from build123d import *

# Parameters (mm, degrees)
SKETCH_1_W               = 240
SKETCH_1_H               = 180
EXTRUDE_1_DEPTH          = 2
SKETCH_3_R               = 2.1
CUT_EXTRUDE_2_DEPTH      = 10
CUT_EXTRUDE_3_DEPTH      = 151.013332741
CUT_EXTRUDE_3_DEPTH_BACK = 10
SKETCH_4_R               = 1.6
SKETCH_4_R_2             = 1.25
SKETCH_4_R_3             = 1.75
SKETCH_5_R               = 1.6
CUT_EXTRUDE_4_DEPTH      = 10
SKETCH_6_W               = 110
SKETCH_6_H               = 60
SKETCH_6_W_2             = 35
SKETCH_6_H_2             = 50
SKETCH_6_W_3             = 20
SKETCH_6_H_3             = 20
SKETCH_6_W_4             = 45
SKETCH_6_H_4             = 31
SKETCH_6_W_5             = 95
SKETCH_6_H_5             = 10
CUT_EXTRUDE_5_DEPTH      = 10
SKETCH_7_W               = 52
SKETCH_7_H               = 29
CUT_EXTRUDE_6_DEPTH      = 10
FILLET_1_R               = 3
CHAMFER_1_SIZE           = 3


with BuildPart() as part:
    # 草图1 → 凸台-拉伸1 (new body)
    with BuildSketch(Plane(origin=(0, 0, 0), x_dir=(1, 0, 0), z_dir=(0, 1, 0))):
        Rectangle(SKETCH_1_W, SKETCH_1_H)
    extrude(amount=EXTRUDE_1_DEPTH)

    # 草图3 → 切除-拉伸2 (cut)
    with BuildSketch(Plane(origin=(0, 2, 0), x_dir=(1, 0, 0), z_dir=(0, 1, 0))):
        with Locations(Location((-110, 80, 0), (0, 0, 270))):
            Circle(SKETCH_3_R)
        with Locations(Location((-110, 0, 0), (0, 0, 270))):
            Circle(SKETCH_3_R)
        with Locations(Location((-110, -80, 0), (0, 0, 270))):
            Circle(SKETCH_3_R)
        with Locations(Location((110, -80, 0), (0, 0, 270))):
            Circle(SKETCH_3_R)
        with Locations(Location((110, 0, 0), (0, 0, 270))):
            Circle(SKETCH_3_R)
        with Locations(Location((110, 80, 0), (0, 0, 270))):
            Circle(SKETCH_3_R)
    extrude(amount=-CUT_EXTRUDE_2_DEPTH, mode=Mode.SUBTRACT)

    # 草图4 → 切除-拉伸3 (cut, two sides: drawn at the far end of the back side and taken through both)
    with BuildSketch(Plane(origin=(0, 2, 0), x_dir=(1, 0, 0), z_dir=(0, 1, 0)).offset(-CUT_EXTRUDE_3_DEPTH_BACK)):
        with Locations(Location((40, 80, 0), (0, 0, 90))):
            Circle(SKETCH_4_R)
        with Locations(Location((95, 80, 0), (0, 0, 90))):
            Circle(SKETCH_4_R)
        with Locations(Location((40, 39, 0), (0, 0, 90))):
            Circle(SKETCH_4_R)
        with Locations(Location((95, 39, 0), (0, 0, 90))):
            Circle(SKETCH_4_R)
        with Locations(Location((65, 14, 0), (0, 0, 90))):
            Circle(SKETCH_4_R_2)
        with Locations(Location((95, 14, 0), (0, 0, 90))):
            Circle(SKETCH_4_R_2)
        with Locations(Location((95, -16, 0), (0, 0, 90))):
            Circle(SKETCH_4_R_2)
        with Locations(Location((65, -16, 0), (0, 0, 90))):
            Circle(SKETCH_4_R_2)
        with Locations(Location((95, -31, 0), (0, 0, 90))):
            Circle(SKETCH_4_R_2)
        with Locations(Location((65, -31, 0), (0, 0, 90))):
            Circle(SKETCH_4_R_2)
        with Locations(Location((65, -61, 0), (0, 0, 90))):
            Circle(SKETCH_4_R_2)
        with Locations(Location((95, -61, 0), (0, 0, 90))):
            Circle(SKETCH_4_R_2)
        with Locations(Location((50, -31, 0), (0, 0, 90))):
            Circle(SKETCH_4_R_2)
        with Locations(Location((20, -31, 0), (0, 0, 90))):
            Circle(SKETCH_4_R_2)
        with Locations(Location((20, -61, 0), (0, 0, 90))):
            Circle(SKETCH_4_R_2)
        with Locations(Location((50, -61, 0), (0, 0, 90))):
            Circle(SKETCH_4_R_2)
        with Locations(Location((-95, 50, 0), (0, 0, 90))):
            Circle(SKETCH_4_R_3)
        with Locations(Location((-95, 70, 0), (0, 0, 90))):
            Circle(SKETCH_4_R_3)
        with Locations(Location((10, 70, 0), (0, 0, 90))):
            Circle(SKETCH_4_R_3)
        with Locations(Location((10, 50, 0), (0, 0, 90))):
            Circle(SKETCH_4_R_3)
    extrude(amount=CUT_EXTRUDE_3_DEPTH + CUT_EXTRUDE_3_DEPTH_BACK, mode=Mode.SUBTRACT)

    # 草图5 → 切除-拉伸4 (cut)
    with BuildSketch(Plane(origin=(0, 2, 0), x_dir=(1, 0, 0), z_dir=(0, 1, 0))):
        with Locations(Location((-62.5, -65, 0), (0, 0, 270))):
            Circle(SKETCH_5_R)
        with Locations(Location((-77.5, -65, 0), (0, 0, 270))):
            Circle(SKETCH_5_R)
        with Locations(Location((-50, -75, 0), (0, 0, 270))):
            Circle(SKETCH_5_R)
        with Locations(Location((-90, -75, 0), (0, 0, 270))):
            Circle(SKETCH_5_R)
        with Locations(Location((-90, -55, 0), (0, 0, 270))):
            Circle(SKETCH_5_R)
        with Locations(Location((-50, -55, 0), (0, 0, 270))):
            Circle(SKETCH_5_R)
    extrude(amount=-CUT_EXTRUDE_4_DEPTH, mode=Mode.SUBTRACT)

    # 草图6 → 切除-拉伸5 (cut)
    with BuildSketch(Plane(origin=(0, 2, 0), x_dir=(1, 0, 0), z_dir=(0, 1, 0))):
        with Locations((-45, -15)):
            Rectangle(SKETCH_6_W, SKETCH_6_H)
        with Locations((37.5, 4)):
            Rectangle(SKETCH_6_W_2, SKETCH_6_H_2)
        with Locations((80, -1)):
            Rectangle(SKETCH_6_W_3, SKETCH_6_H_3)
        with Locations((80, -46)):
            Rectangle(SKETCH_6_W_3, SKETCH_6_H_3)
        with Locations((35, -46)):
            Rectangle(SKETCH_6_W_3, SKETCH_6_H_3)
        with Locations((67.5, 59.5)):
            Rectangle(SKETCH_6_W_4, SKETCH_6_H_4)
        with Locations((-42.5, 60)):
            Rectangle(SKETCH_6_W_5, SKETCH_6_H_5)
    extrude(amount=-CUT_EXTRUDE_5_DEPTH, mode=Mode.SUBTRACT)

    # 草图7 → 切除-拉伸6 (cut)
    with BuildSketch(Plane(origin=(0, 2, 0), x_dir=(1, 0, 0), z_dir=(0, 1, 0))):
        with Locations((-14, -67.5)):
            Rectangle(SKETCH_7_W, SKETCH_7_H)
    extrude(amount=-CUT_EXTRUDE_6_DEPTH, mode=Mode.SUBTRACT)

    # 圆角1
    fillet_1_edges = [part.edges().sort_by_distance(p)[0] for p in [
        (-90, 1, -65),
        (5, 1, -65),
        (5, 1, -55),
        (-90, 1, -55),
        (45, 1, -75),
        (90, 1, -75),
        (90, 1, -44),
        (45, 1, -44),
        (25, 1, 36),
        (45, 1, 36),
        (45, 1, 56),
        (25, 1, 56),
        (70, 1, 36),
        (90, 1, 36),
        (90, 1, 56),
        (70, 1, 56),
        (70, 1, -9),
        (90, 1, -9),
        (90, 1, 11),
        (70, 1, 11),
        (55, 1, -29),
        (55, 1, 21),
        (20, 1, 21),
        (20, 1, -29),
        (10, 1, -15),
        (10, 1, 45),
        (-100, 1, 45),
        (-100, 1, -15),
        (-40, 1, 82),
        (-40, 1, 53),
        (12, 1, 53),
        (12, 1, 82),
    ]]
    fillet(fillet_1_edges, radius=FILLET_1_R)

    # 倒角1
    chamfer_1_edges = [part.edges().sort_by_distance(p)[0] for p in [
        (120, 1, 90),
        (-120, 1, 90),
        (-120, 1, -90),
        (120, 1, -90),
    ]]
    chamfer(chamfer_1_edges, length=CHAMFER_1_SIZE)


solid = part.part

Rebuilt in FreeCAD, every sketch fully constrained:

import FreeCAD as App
import Part
import Sketcher

V = App.Vector


def edges_at(feature, points):
    """Names of the edges that pass closest to the given points."""
    edges = feature.Shape.Edges
    near = lambda p: min(range(len(edges)), key=lambda i: edges[i].distToShape(Part.Vertex(*p))[0])
    return sorted({f"Edge{near(p) + 1}" for p in points})


def add_polygon(sketch, points):
    """Adds a closed chain of lines whose ends are joined by coincident constraints."""
    first, n = sketch.GeometryCount, len(points)
    for a, b in zip(points, points[1:] + points[:1]):
        sketch.addGeometry(Part.LineSegment(App.Vector(*a, 0), App.Vector(*b, 0)), False)
    for i in range(n):
        sketch.addConstraint(Sketcher.Constraint("Coincident", first + i, 2, first + (i + 1) % n, 1))

doc = App.newDocument("Part")
body = doc.addObject("PartDesign::Body", "Body")

sketch1 = body.newObject("Sketcher::SketchObject", "Sketch")
sketch1.AttachmentSupport = (doc.getObject("XZ_Plane"), [""])
sketch1.MapMode = "FlatFace"
add_polygon(sketch1, [(-120, -90), (-120, 90), (120, 90), (120, -90)])
sketch1.addConstraint(Sketcher.Constraint("Vertical", 0))
sketch1.addConstraint(Sketcher.Constraint("Horizontal", 1))
sketch1.addConstraint(Sketcher.Constraint("Vertical", 2))
sketch1.addConstraint(Sketcher.Constraint("Horizontal", 3))
sketch1.addConstraint(Sketcher.Constraint("Symmetric", 0, 2, 2, 2, -1, 1))
sketch1.addConstraint(Sketcher.Constraint("DistanceX", 1, 1, 1, 2, 240.0))
sketch1.addConstraint(Sketcher.Constraint("DistanceY", 0, 1, 0, 2, 180.0))
pad1 = body.newObject("PartDesign::Pad", "Pad")
pad1.Profile = sketch1
pad1.Length = 2
pad1.Reversed = True

sketch2 = body.newObject("Sketcher::SketchObject", "Sketch001")
sketch2.AttachmentSupport = (doc.getObject("XZ_Plane"), [""])
sketch2.MapMode = "FlatFace"
sketch2.AttachmentOffset = App.Placement(V(0, 0, -2), App.Rotation())
sketch2.addGeometry(Part.Circle(V(-110, -80, 0), V(0, 0, 1), 2.1), False)
sketch2.addGeometry(Part.Circle(V(-110, 0, 0), V(0, 0, 1), 2.1), False)
sketch2.addGeometry(Part.Circle(V(-110, 80, 0), V(0, 0, 1), 2.1), False)
sketch2.addGeometry(Part.Circle(V(110, 80, 0), V(0, 0, 1), 2.1), False)
sketch2.addGeometry(Part.Circle(V(110, 0, 0), V(0, 0, 1), 2.1), False)
sketch2.addGeometry(Part.Circle(V(110, -80, 0), V(0, 0, 1), 2.1), False)
sketch2.addConstraint(Sketcher.Constraint("Equal", 0, 1))
sketch2.addConstraint(Sketcher.Constraint("Equal", 1, 2))
sketch2.addConstraint(Sketcher.Constraint("Equal", 2, 3))
sketch2.addConstraint(Sketcher.Constraint("Equal", 3, 4))
sketch2.addConstraint(Sketcher.Constraint("Equal", 4, 5))
sketch2.addConstraint(Sketcher.Constraint("Symmetric", 0, 3, 3, 3, -1, 1))
sketch2.addConstraint(Sketcher.Constraint("Symmetric", 1, 3, 4, 3, -1, 1))
sketch2.addConstraint(Sketcher.Constraint("Symmetric", 2, 3, 5, 3, -1, 1))
sketch2.addConstraint(Sketcher.Constraint("Symmetric", 2, 3, 3, 3, -2))
sketch2.addConstraint(Sketcher.Constraint("PointOnObject", 1, 3, -1))
sketch2.addConstraint(Sketcher.Constraint("Vertical", 0, 3, 1, 3))
sketch2.addConstraint(Sketcher.Constraint("Diameter", 0, 4.2))
sketch2.addConstraint(Sketcher.Constraint("DistanceX", 0, 3, -1, 1, 110.0))
sketch2.addConstraint(Sketcher.Constraint("DistanceY", 0, 3, -1, 1, 80.0))
pocket1 = body.newObject("PartDesign::Pocket", "Pocket")
pocket1.Profile = sketch2
pocket1.Length = 10
pocket1.Reversed = True

sketch3 = body.newObject("Sketcher::SketchObject", "Sketch002")
sketch3.AttachmentSupport = (doc.getObject("XZ_Plane"), [""])
sketch3.MapMode = "FlatFace"
sketch3.AttachmentOffset = App.Placement(V(0, 0, -2), App.Rotation())
sketch3.addGeometry(Part.Circle(V(40, -80, 0), V(0, 0, 1), 1.6), False)
sketch3.addGeometry(Part.Circle(V(95, -80, 0), V(0, 0, 1), 1.6), False)
sketch3.addGeometry(Part.Circle(V(40, -39, 0), V(0, 0, 1), 1.6), False)
sketch3.addGeometry(Part.Circle(V(95, -39, 0), V(0, 0, 1), 1.6), False)
sketch3.addGeometry(Part.Circle(V(65, -14, 0), V(0, 0, 1), 1.2), False)
sketch3.addGeometry(Part.Circle(V(95, -14, 0), V(0, 0, 1), 1.2), False)
sketch3.addGeometry(Part.Circle(V(95, 16, 0), V(0, 0, 1), 1.2), False)
sketch3.addGeometry(Part.Circle(V(65, 16, 0), V(0, 0, 1), 1.2), False)
sketch3.addGeometry(Part.Circle(V(95, 31, 0), V(0, 0, 1), 1.2), False)
sketch3.addGeometry(Part.Circle(V(65, 31, 0), V(0, 0, 1), 1.2), False)
sketch3.addGeometry(Part.Circle(V(65, 61, 0), V(0, 0, 1), 1.2), False)
sketch3.addGeometry(Part.Circle(V(95, 61, 0), V(0, 0, 1), 1.2), False)
sketch3.addGeometry(Part.Circle(V(50, 31, 0), V(0, 0, 1), 1.2), False)
sketch3.addGeometry(Part.Circle(V(20, 31, 0), V(0, 0, 1), 1.2), False)
sketch3.addGeometry(Part.Circle(V(20, 61, 0), V(0, 0, 1), 1.2), False)
sketch3.addGeometry(Part.Circle(V(50, 61, 0), V(0, 0, 1), 1.2), False)
sketch3.addGeometry(Part.Circle(V(-95, -50, 0), V(0, 0, 1), 1.8), False)
sketch3.addGeometry(Part.Circle(V(-95, -70, 0), V(0, 0, 1), 1.8), False)
sketch3.addGeometry(Part.Circle(V(10, -70, 0), V(0, 0, 1), 1.8), False)
sketch3.addGeometry(Part.Circle(V(10, -50, 0), V(0, 0, 1), 1.8), False)
sketch3.addConstraint(Sketcher.Constraint("Equal", 0, 1))
sketch3.addConstraint(Sketcher.Constraint("Equal", 1, 2))
sketch3.addConstraint(Sketcher.Constraint("Equal", 2, 3))
sketch3.addConstraint(Sketcher.Constraint("Equal", 4, 5))
sketch3.addConstraint(Sketcher.Constraint("Equal", 5, 6))
sketch3.addConstraint(Sketcher.Constraint("Equal", 6, 7))
sketch3.addConstraint(Sketcher.Constraint("Equal", 7, 8))
sketch3.addConstraint(Sketcher.Constraint("Equal", 8, 9))
sketch3.addConstraint(Sketcher.Constraint("Equal", 9, 10))
sketch3.addConstraint(Sketcher.Constraint("Equal", 10, 11))
sketch3.addConstraint(Sketcher.Constraint("Equal", 11, 12))
sketch3.addConstraint(Sketcher.Constraint("Equal", 12, 13))
sketch3.addConstraint(Sketcher.Constraint("Equal", 13, 14))
sketch3.addConstraint(Sketcher.Constraint("Equal", 14, 15))
sketch3.addConstraint(Sketcher.Constraint("Equal", 16, 17))
sketch3.addConstraint(Sketcher.Constraint("Equal", 17, 18))
sketch3.addConstraint(Sketcher.Constraint("Equal", 18, 19))
sketch3.addConstraint(Sketcher.Constraint("Horizontal", 0, 3, 1, 3))
sketch3.addConstraint(Sketcher.Constraint("Horizontal", 2, 3, 3, 3))
sketch3.addConstraint(Sketcher.Constraint("Horizontal", 4, 3, 5, 3))
sketch3.addConstraint(Sketcher.Constraint("Horizontal", 6, 3, 7, 3))
sketch3.addConstraint(Sketcher.Constraint("Horizontal", 8, 3, 9, 3))
sketch3.addConstraint(Sketcher.Constraint("Horizontal", 10, 3, 11, 3))
sketch3.addConstraint(Sketcher.Constraint("Horizontal", 9, 3, 12, 3))
sketch3.addConstraint(Sketcher.Constraint("Horizontal", 12, 3, 13, 3))
sketch3.addConstraint(Sketcher.Constraint("Horizontal", 11, 3, 14, 3))
sketch3.addConstraint(Sketcher.Constraint("Horizontal", 14, 3, 15, 3))
sketch3.addConstraint(Sketcher.Constraint("Horizontal", 17, 3, 18, 3))
sketch3.addConstraint(Sketcher.Constraint("Horizontal", 16, 3, 19, 3))
sketch3.addConstraint(Sketcher.Constraint("Vertical", 0, 3, 2, 3))
sketch3.addConstraint(Sketcher.Constraint("Vertical", 1, 3, 3, 3))
sketch3.addConstraint(Sketcher.Constraint("Vertical", 3, 3, 5, 3))
sketch3.addConstraint(Sketcher.Constraint("Vertical", 5, 3, 6, 3))
sketch3.addConstraint(Sketcher.Constraint("Vertical", 4, 3, 7, 3))
sketch3.addConstraint(Sketcher.Constraint("Vertical", 6, 3, 8, 3))
sketch3.addConstraint(Sketcher.Constraint("Vertical", 7, 3, 9, 3))
sketch3.addConstraint(Sketcher.Constraint("Vertical", 9, 3, 10, 3))
sketch3.addConstraint(Sketcher.Constraint("Vertical", 8, 3, 11, 3))
sketch3.addConstraint(Sketcher.Constraint("Vertical", 13, 3, 14, 3))
sketch3.addConstraint(Sketcher.Constraint("Vertical", 12, 3, 15, 3))
sketch3.addConstraint(Sketcher.Constraint("Vertical", 16, 3, 17, 3))
sketch3.addConstraint(Sketcher.Constraint("Vertical", 18, 3, 19, 3))
sketch3.addConstraint(Sketcher.Constraint("Diameter", 0, 3.2))
sketch3.addConstraint(Sketcher.Constraint("Diameter", 4, 2.5))
sketch3.addConstraint(Sketcher.Constraint("Diameter", 16, 3.5))
sketch3.addConstraint(Sketcher.Constraint("DistanceX", -1, 1, 0, 3, 40.0))
sketch3.addConstraint(Sketcher.Constraint("DistanceY", 0, 3, -1, 1, 80.0))
sketch3.addConstraint(Sketcher.Constraint("DistanceX", -1, 1, 1, 3, 95.0))
sketch3.addConstraint(Sketcher.Constraint("DistanceY", 2, 3, -1, 1, 39.0))
sketch3.addConstraint(Sketcher.Constraint("DistanceX", -1, 1, 4, 3, 65.0))
sketch3.addConstraint(Sketcher.Constraint("DistanceY", 4, 3, -1, 1, 14.0))
sketch3.addConstraint(Sketcher.Constraint("DistanceY", -1, 1, 6, 3, 16.0))
sketch3.addConstraint(Sketcher.Constraint("DistanceY", -1, 1, 8, 3, 31.0))
sketch3.addConstraint(Sketcher.Constraint("DistanceY", -1, 1, 10, 3, 61.0))
sketch3.addConstraint(Sketcher.Constraint("DistanceX", -1, 1, 12, 3, 50.0))
sketch3.addConstraint(Sketcher.Constraint("DistanceX", -1, 1, 13, 3, 20.0))
sketch3.addConstraint(Sketcher.Constraint("DistanceX", 16, 3, -1, 1, 95.0))
sketch3.addConstraint(Sketcher.Constraint("DistanceY", 16, 3, -1, 1, 50.0))
sketch3.addConstraint(Sketcher.Constraint("DistanceY", 17, 3, -1, 1, 70.0))
sketch3.addConstraint(Sketcher.Constraint("DistanceX", -1, 1, 18, 3, 10.0))
pocket2 = body.newObject("PartDesign::Pocket", "Pocket001")
pocket2.Profile = sketch3
pocket2.Type = "ThroughAll"
pocket2.Midplane = True

sketch4 = body.newObject("Sketcher::SketchObject", "Sketch003")
sketch4.AttachmentSupport = (doc.getObject("XZ_Plane"), [""])
sketch4.MapMode = "FlatFace"
sketch4.AttachmentOffset = App.Placement(V(0, 0, -2), App.Rotation())
sketch4.addGeometry(Part.Circle(V(-62.5, 65, 0), V(0, 0, 1), 1.6), False)
sketch4.addGeometry(Part.Circle(V(-77.5, 65, 0), V(0, 0, 1), 1.6), False)
sketch4.addGeometry(Part.Circle(V(-50, 75, 0), V(0, 0, 1), 1.6), False)
sketch4.addGeometry(Part.Circle(V(-90, 75, 0), V(0, 0, 1), 1.6), False)
sketch4.addGeometry(Part.Circle(V(-90, 55, 0), V(0, 0, 1), 1.6), False)
sketch4.addGeometry(Part.Circle(V(-50, 55, 0), V(0, 0, 1), 1.6), False)
sketch4.addConstraint(Sketcher.Constraint("Equal", 0, 1))
sketch4.addConstraint(Sketcher.Constraint("Equal", 1, 2))
sketch4.addConstraint(Sketcher.Constraint("Equal", 2, 3))
sketch4.addConstraint(Sketcher.Constraint("Equal", 3, 4))
sketch4.addConstraint(Sketcher.Constraint("Equal", 4, 5))
sketch4.addConstraint(Sketcher.Constraint("Horizontal", 0, 3, 1, 3))
sketch4.addConstraint(Sketcher.Constraint("Horizontal", 2, 3, 3, 3))
sketch4.addConstraint(Sketcher.Constraint("Horizontal", 4, 3, 5, 3))
sketch4.addConstraint(Sketcher.Constraint("Vertical", 3, 3, 4, 3))
sketch4.addConstraint(Sketcher.Constraint("Vertical", 2, 3, 5, 3))
sketch4.addConstraint(Sketcher.Constraint("Diameter", 0, 3.2))
sketch4.addConstraint(Sketcher.Constraint("DistanceY", -1, 1, 0, 3, 65.0))
sketch4.addConstraint(Sketcher.Constraint("DistanceX", 2, 3, -1, 1, 50.0))
sketch4.addConstraint(Sketcher.Constraint("DistanceY", -1, 1, 2, 3, 75.0))
sketch4.addConstraint(Sketcher.Constraint("DistanceX", 3, 3, -1, 1, 90.0))
sketch4.addConstraint(Sketcher.Constraint("DistanceY", -1, 1, 4, 3, 55.0))
sketch4.addConstraint(Sketcher.Constraint("DistanceX", 1, 3, 0, 3, 15.0))
sketch4.addConstraint(Sketcher.Constraint("DistanceX", 0, 3, -1, 1, 62.5))
pocket3 = body.newObject("PartDesign::Pocket", "Pocket002")
pocket3.Profile = sketch4
pocket3.Length = 10
pocket3.Reversed = True

sketch5 = body.newObject("Sketcher::SketchObject", "Sketch004")
sketch5.AttachmentSupport = (doc.getObject("XZ_Plane"), [""])
sketch5.MapMode = "FlatFace"
sketch5.AttachmentOffset = App.Placement(V(0, 0, -2), App.Rotation())
add_polygon(sketch5, [(-100, -15), (-100, 45), (10, 45), (10, -15)])
add_polygon(sketch5, [(20, -29), (20, 21), (55, 21), (55, -29)])
add_polygon(sketch5, [(70, -9), (70, 11), (90, 11), (90, -9)])
add_polygon(sketch5, [(70, 36), (70, 56), (90, 56), (90, 36)])
add_polygon(sketch5, [(25, 36), (25, 56), (45, 56), (45, 36)])
add_polygon(sketch5, [(45, -75), (45, -44), (90, -44), (90, -75)])
add_polygon(sketch5, [(-90, -65), (-90, -55), (5, -55), (5, -65)])
sketch5.addConstraint(Sketcher.Constraint("Vertical", 0))
sketch5.addConstraint(Sketcher.Constraint("Horizontal", 1))
sketch5.addConstraint(Sketcher.Constraint("Vertical", 2))
sketch5.addConstraint(Sketcher.Constraint("Horizontal", 3))
sketch5.addConstraint(Sketcher.Constraint("Vertical", 4))
sketch5.addConstraint(Sketcher.Constraint("Horizontal", 5))
sketch5.addConstraint(Sketcher.Constraint("Vertical", 6))
sketch5.addConstraint(Sketcher.Constraint("Horizontal", 7))
sketch5.addConstraint(Sketcher.Constraint("Vertical", 8))
sketch5.addConstraint(Sketcher.Constraint("Horizontal", 9))
sketch5.addConstraint(Sketcher.Constraint("Vertical", 10))
sketch5.addConstraint(Sketcher.Constraint("Horizontal", 11))
sketch5.addConstraint(Sketcher.Constraint("Vertical", 12))
sketch5.addConstraint(Sketcher.Constraint("Horizontal", 13))
sketch5.addConstraint(Sketcher.Constraint("Vertical", 14))
sketch5.addConstraint(Sketcher.Constraint("Horizontal", 15))
sketch5.addConstraint(Sketcher.Constraint("Vertical", 16))
sketch5.addConstraint(Sketcher.Constraint("Horizontal", 17))
sketch5.addConstraint(Sketcher.Constraint("Vertical", 18))
sketch5.addConstraint(Sketcher.Constraint("Horizontal", 19))
sketch5.addConstraint(Sketcher.Constraint("Vertical", 20))
sketch5.addConstraint(Sketcher.Constraint("Horizontal", 21))
sketch5.addConstraint(Sketcher.Constraint("Vertical", 22))
sketch5.addConstraint(Sketcher.Constraint("Horizontal", 23))
sketch5.addConstraint(Sketcher.Constraint("Vertical", 24))
sketch5.addConstraint(Sketcher.Constraint("Horizontal", 25))
sketch5.addConstraint(Sketcher.Constraint("Vertical", 26))
sketch5.addConstraint(Sketcher.Constraint("Horizontal", 27))
sketch5.addConstraint(Sketcher.Constraint("Horizontal", 13, 2, 16, 2))
sketch5.addConstraint(Sketcher.Constraint("Horizontal", 15, 2, 18, 2))
sketch5.addConstraint(Sketcher.Constraint("Vertical", 11, 2, 12, 2))
sketch5.addConstraint(Sketcher.Constraint("Vertical", 10, 2, 13, 2))
sketch5.addConstraint(Sketcher.Constraint("Vertical", 18, 2, 20, 2))
sketch5.addConstraint(Sketcher.Constraint("Vertical", 14, 2, 21, 2))
sketch5.addConstraint(Sketcher.Constraint("Equal", 15, 17))
sketch5.addConstraint(Sketcher.Constraint("Equal", 19, 8))
sketch5.addConstraint(Sketcher.Constraint("Equal", 10, 12))
sketch5.addConstraint(Sketcher.Constraint("DistanceX", 1, 1, 1, 2, 110.0))
sketch5.addConstraint(Sketcher.Constraint("DistanceX", 5, 1, 5, 2, 35.0))
sketch5.addConstraint(Sketcher.Constraint("DistanceX", 9, 1, 9, 2, 20.0))
sketch5.addConstraint(Sketcher.Constraint("DistanceX", 21, 1, 21, 2, 45.0))
sketch5.addConstraint(Sketcher.Constraint("DistanceX", 25, 1, 25, 2, 95.0))
sketch5.addConstraint(Sketcher.Constraint("DistanceY", 0, 1, 0, 2, 60.0))
sketch5.addConstraint(Sketcher.Constraint("DistanceY", 4, 1, 4, 2, 50.0))
sketch5.addConstraint(Sketcher.Constraint("DistanceY", 20, 1, 20, 2, 31.0))
sketch5.addConstraint(Sketcher.Constraint("DistanceY", 24, 1, 24, 2, 10.0))
sketch5.addConstraint(Sketcher.Constraint("DistanceX", 0, 2, -1, 1, 100.0))
sketch5.addConstraint(Sketcher.Constraint("DistanceY", -1, 1, 0, 2, 45.0))
sketch5.addConstraint(Sketcher.Constraint("DistanceX", -1, 1, 4, 2, 20.0))
sketch5.addConstraint(Sketcher.Constraint("DistanceY", -1, 1, 4, 2, 21.0))
sketch5.addConstraint(Sketcher.Constraint("DistanceX", -1, 1, 8, 2, 70.0))
sketch5.addConstraint(Sketcher.Constraint("DistanceY", -1, 1, 8, 2, 11.0))
sketch5.addConstraint(Sketcher.Constraint("DistanceY", -1, 1, 12, 2, 56.0))
sketch5.addConstraint(Sketcher.Constraint("DistanceY", 20, 2, -1, 1, 44.0))
sketch5.addConstraint(Sketcher.Constraint("DistanceX", 24, 2, -1, 1, 90.0))
sketch5.addConstraint(Sketcher.Constraint("DistanceY", 24, 2, -1, 1, 55.0))
pocket4 = body.newObject("PartDesign::Pocket", "Pocket003")
pocket4.Profile = sketch5
pocket4.Length = 10
pocket4.Reversed = True

sketch6 = body.newObject("Sketcher::SketchObject", "Sketch005")
sketch6.AttachmentSupport = (doc.getObject("XZ_Plane"), [""])
sketch6.MapMode = "FlatFace"
sketch6.AttachmentOffset = App.Placement(V(0, 0, -2), App.Rotation())
add_polygon(sketch6, [(-40, 53), (-40, 82), (12, 82), (12, 53)])
sketch6.addConstraint(Sketcher.Constraint("Vertical", 0))
sketch6.addConstraint(Sketcher.Constraint("Horizontal", 1))
sketch6.addConstraint(Sketcher.Constraint("Vertical", 2))
sketch6.addConstraint(Sketcher.Constraint("Horizontal", 3))
sketch6.addConstraint(Sketcher.Constraint("DistanceX", 1, 1, 1, 2, 52.0))
sketch6.addConstraint(Sketcher.Constraint("DistanceY", 0, 1, 0, 2, 29.0))
sketch6.addConstraint(Sketcher.Constraint("DistanceX", 0, 2, -1, 1, 40.0))
sketch6.addConstraint(Sketcher.Constraint("DistanceY", -1, 1, 0, 2, 82.0))
pocket5 = body.newObject("PartDesign::Pocket", "Pocket004")
pocket5.Profile = sketch6
pocket5.Length = 10
pocket5.Reversed = True
doc.recompute()

fillet = body.newObject("PartDesign::Fillet", "Fillet")
fillet.Base = (pocket5, edges_at(pocket5, [
    (-90, 1, -65),
    (5, 1, -65),
    (5, 1, -55),
    (-90, 1, -55),
    (45, 1, -75),
    (90, 1, -75),
    (90, 1, -44),
    (45, 1, -44),
    (25, 1, 36),
    (45, 1, 36),
    (45, 1, 56),
    (25, 1, 56),
    (70, 1, 36),
    (90, 1, 36),
    (90, 1, 56),
    (70, 1, 56),
    (70, 1, -9),
    (90, 1, -9),
    (90, 1, 11),
    (70, 1, 11),
    (55, 1, -29),
    (55, 1, 21),
    (20, 1, 21),
    (20, 1, -29),
    (10, 1, -15),
    (10, 1, 45),
    (-100, 1, 45),
    (-100, 1, -15),
    (-40, 1, 82),
    (-40, 1, 53),
    (12, 1, 53),
    (12, 1, 82),
]))
fillet.Radius = 3
doc.recompute()

chamfer = body.newObject("PartDesign::Chamfer", "Chamfer")
chamfer.Base = (fillet, edges_at(fillet, [
    (120, 1, 90),
    (-120, 1, 90),
    (-120, 1, -90),
    (120, 1, -90),
]))
chamfer.Size = 3

doc.recompute()
